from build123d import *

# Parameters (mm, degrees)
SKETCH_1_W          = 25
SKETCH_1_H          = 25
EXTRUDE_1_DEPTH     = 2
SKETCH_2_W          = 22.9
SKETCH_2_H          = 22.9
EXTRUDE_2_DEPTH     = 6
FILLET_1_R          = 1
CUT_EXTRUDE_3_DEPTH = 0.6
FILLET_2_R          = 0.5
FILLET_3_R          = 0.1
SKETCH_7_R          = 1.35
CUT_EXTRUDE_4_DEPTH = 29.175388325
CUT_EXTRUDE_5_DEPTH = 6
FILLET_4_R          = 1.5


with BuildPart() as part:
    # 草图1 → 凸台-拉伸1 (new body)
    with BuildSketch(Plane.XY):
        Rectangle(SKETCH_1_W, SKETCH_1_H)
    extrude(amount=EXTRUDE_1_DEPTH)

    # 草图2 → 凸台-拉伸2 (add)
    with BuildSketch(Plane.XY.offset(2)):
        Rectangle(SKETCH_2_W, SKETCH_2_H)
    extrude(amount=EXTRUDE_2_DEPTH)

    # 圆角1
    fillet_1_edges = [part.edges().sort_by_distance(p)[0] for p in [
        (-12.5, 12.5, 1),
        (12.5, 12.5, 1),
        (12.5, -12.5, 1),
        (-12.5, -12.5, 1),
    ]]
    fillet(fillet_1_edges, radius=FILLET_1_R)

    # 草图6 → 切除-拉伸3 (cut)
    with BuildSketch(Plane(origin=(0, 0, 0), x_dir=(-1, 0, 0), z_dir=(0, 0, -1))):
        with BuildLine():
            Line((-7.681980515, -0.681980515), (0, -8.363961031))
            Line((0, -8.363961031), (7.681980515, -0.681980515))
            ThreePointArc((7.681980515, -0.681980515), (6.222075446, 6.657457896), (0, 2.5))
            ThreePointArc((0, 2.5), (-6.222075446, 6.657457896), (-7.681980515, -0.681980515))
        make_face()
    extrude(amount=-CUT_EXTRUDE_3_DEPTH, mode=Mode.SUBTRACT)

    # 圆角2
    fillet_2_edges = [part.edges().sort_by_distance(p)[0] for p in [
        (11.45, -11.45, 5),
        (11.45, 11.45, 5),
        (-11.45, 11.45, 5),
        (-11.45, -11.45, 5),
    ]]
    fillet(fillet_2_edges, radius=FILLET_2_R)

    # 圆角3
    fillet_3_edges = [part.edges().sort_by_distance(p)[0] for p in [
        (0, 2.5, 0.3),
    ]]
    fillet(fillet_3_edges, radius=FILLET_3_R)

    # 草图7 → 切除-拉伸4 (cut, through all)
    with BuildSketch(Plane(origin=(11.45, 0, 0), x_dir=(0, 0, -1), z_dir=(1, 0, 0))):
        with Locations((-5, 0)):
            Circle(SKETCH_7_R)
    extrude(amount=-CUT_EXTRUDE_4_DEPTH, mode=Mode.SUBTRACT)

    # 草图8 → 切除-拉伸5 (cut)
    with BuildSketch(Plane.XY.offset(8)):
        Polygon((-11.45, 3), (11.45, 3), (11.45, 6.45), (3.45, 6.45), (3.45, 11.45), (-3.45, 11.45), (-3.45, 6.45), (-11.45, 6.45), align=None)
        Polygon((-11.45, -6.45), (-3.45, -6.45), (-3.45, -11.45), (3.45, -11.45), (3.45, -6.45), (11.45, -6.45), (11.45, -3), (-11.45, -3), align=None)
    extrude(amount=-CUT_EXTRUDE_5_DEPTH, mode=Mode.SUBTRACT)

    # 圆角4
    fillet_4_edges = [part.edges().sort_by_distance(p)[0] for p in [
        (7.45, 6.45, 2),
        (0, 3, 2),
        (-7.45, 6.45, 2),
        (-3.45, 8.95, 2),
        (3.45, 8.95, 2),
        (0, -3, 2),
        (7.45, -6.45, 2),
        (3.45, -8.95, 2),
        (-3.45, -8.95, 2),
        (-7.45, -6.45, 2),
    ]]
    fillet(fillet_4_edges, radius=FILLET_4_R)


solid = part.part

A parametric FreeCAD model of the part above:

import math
import FreeCAD as App
import Part
import Sketcher
from FreeCAD import Vector


def edges_at(feature, points):
    """Names of the edges that pass closest to the given points."""
    edges = feature.Shape.Edges
    near = lambda p: min(range(len(edges)), key=lambda i: edges[i].distToShape(Part.Vertex(*p))[0])
    return sorted({f"Edge{near(p) + 1}" for p in points})

doc = App.newDocument("Part")
body = doc.addObject("PartDesign::Body", "Body")

sketch1 = body.newObject("Sketcher::SketchObject", "Sketch")
sketch1.AttachmentSupport = (doc.getObject("XY_Plane"), [""])
sketch1.MapMode = "FlatFace"
sketch1.addGeometry(Part.LineSegment(Vector(-12.5, 12.5, 0), Vector(-12.5, -12.5, 0)), False)
sketch1.addGeometry(Part.LineSegment(Vector(-12.5, -12.5, 0), Vector(12.5, -12.5, 0)), False)
sketch1.addGeometry(Part.LineSegment(Vector(12.5, -12.5, 0), Vector(12.5, 12.5, 0)), False)
sketch1.addGeometry(Part.LineSegment(Vector(12.5, 12.5, 0), Vector(-12.5, 12.5, 0)), False)
sketch1.addConstraint(Sketcher.Constraint("Coincident", 0, 2, 1, 1))
sketch1.addConstraint(Sketcher.Constraint("Coincident", 1, 2, 2, 1))
sketch1.addConstraint(Sketcher.Constraint("Coincident", 2, 2, 3, 1))
sketch1.addConstraint(Sketcher.Constraint("Coincident", 3, 2, 0, 1))
sketch1.addConstraint(Sketcher.Constraint("Vertical", 0))
sketch1.addConstraint(Sketcher.Constraint("Horizontal", 1))
sketch1.addConstraint(Sketcher.Constraint("Vertical", 2))
sketch1.addConstraint(Sketcher.Constraint("Horizontal", 3))
sketch1.addConstraint(Sketcher.Constraint("Symmetric", 0, 2, 2, 2, -1, 1))
sketch1.addConstraint(Sketcher.Constraint("Equal", 3, 0))
sketch1.addConstraint(Sketcher.Constraint("DistanceX", 1, 1, 1, 2, 25.0))
pad1 = body.newObject("PartDesign::Pad", "Pad")
pad1.Profile = sketch1
pad1.Length = 2

sketch2 = body.newObject("Sketcher::SketchObject", "Sketch001")
sketch2.AttachmentSupport = (doc.getObject("XY_Plane"), [""])
sketch2.MapMode = "FlatFace"
sketch2.AttachmentOffset = App.Placement(Vector(0, 0, 2), App.Rotation())
sketch2.addGeometry(Part.LineSegment(Vector(-11.45, 11.45, 0), Vector(-11.45, -11.45, 0)), False)
sketch2.addGeometry(Part.LineSegment(Vector(-11.45, -11.45, 0), Vector(11.45, -11.45, 0)), False)
sketch2.addGeometry(Part.LineSegment(Vector(11.45, -11.45, 0), Vector(11.45, 11.45, 0)), False)
sketch2.addGeometry(Part.LineSegment(Vector(11.45, 11.45, 0), Vector(-11.45, 11.45, 0)), False)
sketch2.addConstraint(Sketcher.Constraint("Coincident", 0, 2, 1, 1))
sketch2.addConstraint(Sketcher.Constraint("Coincident", 1, 2, 2, 1))
sketch2.addConstraint(Sketcher.Constraint("Coincident", 2, 2, 3, 1))
sketch2.addConstraint(Sketcher.Constraint("Coincident", 3, 2, 0, 1))
sketch2.addConstraint(Sketcher.Constraint("Vertical", 0))
sketch2.addConstraint(Sketcher.Constraint("Horizontal", 1))
sketch2.addConstraint(Sketcher.Constraint("Vertical", 2))
sketch2.addConstraint(Sketcher.Constraint("Horizontal", 3))
sketch2.addConstraint(Sketcher.Constraint("Symmetric", 0, 2, 2, 2, -1, 1))
sketch2.addConstraint(Sketcher.Constraint("Equal", 3, 0))
sketch2.addConstraint(Sketcher.Constraint("DistanceX", 1, 1, 1, 2, 22.9))
pad2 = body.newObject("PartDesign::Pad", "Pad001")
pad2.Profile = sketch2
pad2.Length = 6
doc.recompute()

fillet = body.newObject("PartDesign::Fillet", "Fillet")
fillet.Base = (pad2, edges_at(pad2, [
    (-12.5, 12.5, 1),
    (12.5, 12.5, 1),
    (12.5, -12.5, 1),
    (-12.5, -12.5, 1),
]))
fillet.Radius = 1

sketch3 = body.newObject("Sketcher::SketchObject", "Sketch002")
sketch3.AttachmentSupport = (doc.getObject("XY_Plane"), [""])
sketch3.MapMode = "FlatFace"
sketch3.addGeometry(Part.LineSegment(Vector(7.681981, -0.681981, 0), Vector(0, -8.363961, 0)), False)
sketch3.addGeometry(Part.LineSegment(Vector(0, -8.363961, 0), Vector(-7.681981, -0.681981, 0)), False)
sketch3.addGeometry(Part.ArcOfCircle(Part.Circle(Vector(-4.5, 2.5, 0), Vector(0, 0, 1), 4.5), math.radians(0), math.radians(225)), False)
sketch3.addGeometry(Part.ArcOfCircle(Part.Circle(Vector(4.5, 2.5, 0), Vector(0, 0, 1), 4.5), math.radians(-45), math.radians(180)), False)
sketch3.addConstraint(Sketcher.Constraint("Coincident", 0, 2, 1, 1))
sketch3.addConstraint(Sketcher.Constraint("Tangent", 1, 2, 2, 2))
sketch3.addConstraint(Sketcher.Constraint("Tangent", 2, 1, 3, 2))
sketch3.addConstraint(Sketcher.Constraint("Tangent", 3, 1, 0, 1))
sketch3.addConstraint(Sketcher.Constraint("Equal", 2, 3))
sketch3.addConstraint(Sketcher.Constraint("Symmetric", 2, 3, 3, 3, -2))
sketch3.addConstraint(Sketcher.Constraint("PointOnObject", 0, 2, -2))
sketch3.addConstraint(Sketcher.Constraint("Perpendicular", 0, 1))
sketch3.addConstraint(Sketcher.Constraint("Radius", 2, 4.5))
sketch3.addConstraint(Sketcher.Constraint("DistanceY", -1, 1, 2, 3, 2.5))
pocket1 = body.newObject("PartDesign::Pocket", "Pocket")
pocket1.Profile = sketch3
pocket1.Length = 0.6
pocket1.Reversed = True
doc.recompute()

fillet2 = body.newObject("PartDesign::Fillet", "Fillet001")
fillet2.Base = (pocket1, edges_at(pocket1, [
    (11.45, -11.45, 5),
    (11.45, 11.45, 5),
    (-11.45, 11.45, 5),
    (-11.45, -11.45, 5),
]))
fillet2.Radius = 0.5
doc.recompute()

fillet3 = body.newObject("PartDesign::Fillet", "Fillet002")
fillet3.Base = (fillet2, edges_at(fillet2, [(0, 2.5, 0.3)]))
fillet3.Radius = 0.1

sketch4 = body.newObject("Sketcher::SketchObject", "Sketch003")
sketch4.AttachmentSupport = (doc.getObject("YZ_Plane"), [""])
sketch4.MapMode = "FlatFace"
sketch4.AttachmentOffset = App.Placement(Vector(0, 0, 11.45), App.Rotation())
sketch4.addGeometry(Part.Circle(Vector(0, 5, 0), Vector(0, 0, 1), 1.35), False)
sketch4.addConstraint(Sketcher.Constraint("PointOnObject", 0, 3, -2))
sketch4.addConstraint(Sketcher.Constraint("Diameter", 0, 2.7))
sketch4.addConstraint(Sketcher.Constraint("DistanceY", -1, 1, 0, 3, 5.0))
pocket2 = body.newObject("PartDesign::Pocket", "Pocket001")
pocket2.Profile = sketch4
pocket2.Type = "ThroughAll"

sketch5 = body.newObject("Sketcher::SketchObject", "Sketch004")
sketch5.AttachmentSupport = (doc.getObject("XY_Plane"), [""])
sketch5.MapMode = "FlatFace"
sketch5.AttachmentOffset = App.Placement(Vector(0, 0, 8), App.Rotation())
sketch5.addGeometry(Part.LineSegment(Vector(-11.45, 3, 0), Vector(11.45, 3, 0)), False)
sketch5.addGeometry(Part.LineSegment(Vector(11.45, 3, 0), Vector(11.45, 6.45, 0)), False)
sketch5.addGeometry(Part.LineSegment(Vector(11.45, 6.45, 0), Vector(3.45, 6.45, 0)), False)
sketch5.addGeometry(Part.LineSegment(Vector(3.45, 6.45, 0), Vector(3.45, 11.45, 0)), False)
sketch5.addGeometry(Part.LineSegment(Vector(3.45, 11.45, 0), Vector(-3.45, 11.45, 0)), False)
sketch5.addGeometry(Part.LineSegment(Vector(-3.45, 11.45, 0), Vector(-3.45, 6.45, 0)), False)
sketch5.addGeometry(Part.LineSegment(Vector(-3.45, 6.45, 0), Vector(-11.45, 6.45, 0)), False)
sketch5.addGeometry(Part.LineSegment(Vector(-11.45, 6.45, 0), Vector(-11.45, 3, 0)), False)
sketch5.addGeometry(Part.LineSegment(Vector(-11.45, -6.45, 0), Vector(-3.45, -6.45, 0)), False)
sketch5.addGeometry(Part.LineSegment(Vector(-3.45, -6.45, 0), Vector(-3.45, -11.45, 0)), False)
sketch5.addGeometry(Part.LineSegment(Vector(-3.45, -11.45, 0), Vector(3.45, -11.45, 0)), False)
sketch5.addGeometry(Part.LineSegment(Vector(3.45, -11.45, 0), Vector(3.45, -6.45, 0)), False)
sketch5.addGeometry(Part.LineSegment(Vector(3.45, -6.45, 0), Vector(11.45, -6.45, 0)), False)
sketch5.addGeometry(Part.LineSegment(Vector(11.45, -6.45, 0), Vector(11.45, -3, 0)), False)
sketch5.addGeometry(Part.LineSegment(Vector(11.45, -3, 0), Vector(-11.45, -3, 0)), False)
sketch5.addGeometry(Part.LineSegment(Vector(-11.45, -3, 0), Vector(-11.45, -6.45, 0)), False)
sketch5.addConstraint(Sketcher.Constraint("Coincident", 0, 2, 1, 1))
sketch5.addConstraint(Sketcher.Constraint("Coincident", 1, 2, 2, 1))
sketch5.addConstraint(Sketcher.Constraint("Coincident", 2, 2, 3, 1))
sketch5.addConstraint(Sketcher.Constraint("Coincident", 3, 2, 4, 1))
sketch5.addConstraint(Sketcher.Constraint("Coincident", 4, 2, 5, 1))
sketch5.addConstraint(Sketcher.Constraint("Coincident", 5, 2, 6, 1))
sketch5.addConstraint(Sketcher.Constraint("Coincident", 6, 2, 7, 1))
sketch5.addConstraint(Sketcher.Constraint("Coincident", 7, 2, 0, 1))
sketch5.addConstraint(Sketcher.Constraint("Coincident", 8, 2, 9, 1))
sketch5.addConstraint(Sketcher.Constraint("Coincident", 9, 2, 10, 1))
sketch5.addConstraint(Sketcher.Constraint("Coincident", 10, 2, 11, 1))
sketch5.addConstraint(Sketcher.Constraint("Coincident", 11, 2, 12, 1))
sketch5.addConstraint(Sketcher.Constraint("Coincident", 12, 2, 13, 1))
sketch5.addConstraint(Sketcher.Constraint("Coincident", 13, 2, 14, 1))
sketch5.addConstraint(Sketcher.Constraint("Coincident", 14, 2, 15, 1))
sketch5.addConstraint(Sketcher.Constraint("Coincident", 15, 2, 8, 1))
sketch5.addConstraint(Sketcher.Constraint("Horizontal", 0))
sketch5.addConstraint(Sketcher.Constraint("Vertical", 1))
sketch5.addConstraint(Sketcher.Constraint("Horizontal", 2))
sketch5.addConstraint(Sketcher.Constraint("Vertical", 3))
sketch5.addConstraint(Sketcher.Constraint("Horizontal", 4))
sketch5.addConstraint(Sketcher.Constraint("Vertical", 5))
sketch5.addConstraint(Sketcher.Constraint("Horizontal", 6))
sketch5.addConstraint(Sketcher.Constraint("Vertical", 7))
sketch5.addConstraint(Sketcher.Constraint("Horizontal", 8))
sketch5.addConstraint(Sketcher.Constraint("Vertical", 9))
sketch5.addConstraint(Sketcher.Constraint("Horizontal", 10))
sketch5.addConstraint(Sketcher.Constraint("Vertical", 11))
sketch5.addConstraint(Sketcher.Constraint("Horizontal", 12))
sketch5.addConstraint(Sketcher.Constraint("Vertical", 13))
sketch5.addConstraint(Sketcher.Constraint("Horizontal", 14))
sketch5.addConstraint(Sketcher.Constraint("Vertical", 15))
sketch5.addConstraint(Sketcher.Constraint("Symmetric", 2, 2, 8, 2, -1, 1))
sketch5.addConstraint(Sketcher.Constraint("Symmetric", 4, 2, 10, 2, -1, 1))
sketch5.addConstraint(Sketcher.Constraint("Symmetric", 6, 2, 12, 2, -1, 1))
sketch5.addConstraint(Sketcher.Constraint("Symmetric", 0, 2, 14, 2, -1, 1))
sketch5.addConstraint(Sketcher.Constraint("Symmetric", 2, 2, 5, 2, -2))
sketch5.addConstraint(Sketcher.Constraint("Vertical", 1, 2, 12, 2))
sketch5.addConstraint(Sketcher.Constraint("DistanceX", 2, 2, 2, 1, 8.0))
sketch5.addConstraint(Sketcher.Constraint("DistanceY", 3, 1, 3, 2, 5.0))
sketch5.addConstraint(Sketcher.Constraint("DistanceX", 0, 1, 0, 2, 22.9))
sketch5.addConstraint(Sketcher.Constraint("DistanceY", -1, 1, 0, 2, 3.0))
sketch5.addConstraint(Sketcher.Constraint("DistanceY", 1, 1, 1, 2, 3.45))
pocket3 = body.newObject("PartDesign::Pocket", "Pocket002")
pocket3.Profile = sketch5
pocket3.Length = 6
doc.recompute()

fillet4 = body.newObject("PartDesign::Fillet", "Fillet003")
fillet4.Base = (pocket3, edges_at(pocket3, [
    (7.45, 6.45, 2),
    (0, 3, 2),
    (-7.45, 6.45, 2),
    (-3.45, 8.95, 2),
    (3.45, 8.95, 2),
    (0, -3, 2),
    (7.45, -6.45, 2),
    (3.45, -8.95, 2),
    (-3.45, -8.95, 2),
    (-7.45, -6.45, 2),
]))
fillet4.Radius = 1.5

doc.recompute()
